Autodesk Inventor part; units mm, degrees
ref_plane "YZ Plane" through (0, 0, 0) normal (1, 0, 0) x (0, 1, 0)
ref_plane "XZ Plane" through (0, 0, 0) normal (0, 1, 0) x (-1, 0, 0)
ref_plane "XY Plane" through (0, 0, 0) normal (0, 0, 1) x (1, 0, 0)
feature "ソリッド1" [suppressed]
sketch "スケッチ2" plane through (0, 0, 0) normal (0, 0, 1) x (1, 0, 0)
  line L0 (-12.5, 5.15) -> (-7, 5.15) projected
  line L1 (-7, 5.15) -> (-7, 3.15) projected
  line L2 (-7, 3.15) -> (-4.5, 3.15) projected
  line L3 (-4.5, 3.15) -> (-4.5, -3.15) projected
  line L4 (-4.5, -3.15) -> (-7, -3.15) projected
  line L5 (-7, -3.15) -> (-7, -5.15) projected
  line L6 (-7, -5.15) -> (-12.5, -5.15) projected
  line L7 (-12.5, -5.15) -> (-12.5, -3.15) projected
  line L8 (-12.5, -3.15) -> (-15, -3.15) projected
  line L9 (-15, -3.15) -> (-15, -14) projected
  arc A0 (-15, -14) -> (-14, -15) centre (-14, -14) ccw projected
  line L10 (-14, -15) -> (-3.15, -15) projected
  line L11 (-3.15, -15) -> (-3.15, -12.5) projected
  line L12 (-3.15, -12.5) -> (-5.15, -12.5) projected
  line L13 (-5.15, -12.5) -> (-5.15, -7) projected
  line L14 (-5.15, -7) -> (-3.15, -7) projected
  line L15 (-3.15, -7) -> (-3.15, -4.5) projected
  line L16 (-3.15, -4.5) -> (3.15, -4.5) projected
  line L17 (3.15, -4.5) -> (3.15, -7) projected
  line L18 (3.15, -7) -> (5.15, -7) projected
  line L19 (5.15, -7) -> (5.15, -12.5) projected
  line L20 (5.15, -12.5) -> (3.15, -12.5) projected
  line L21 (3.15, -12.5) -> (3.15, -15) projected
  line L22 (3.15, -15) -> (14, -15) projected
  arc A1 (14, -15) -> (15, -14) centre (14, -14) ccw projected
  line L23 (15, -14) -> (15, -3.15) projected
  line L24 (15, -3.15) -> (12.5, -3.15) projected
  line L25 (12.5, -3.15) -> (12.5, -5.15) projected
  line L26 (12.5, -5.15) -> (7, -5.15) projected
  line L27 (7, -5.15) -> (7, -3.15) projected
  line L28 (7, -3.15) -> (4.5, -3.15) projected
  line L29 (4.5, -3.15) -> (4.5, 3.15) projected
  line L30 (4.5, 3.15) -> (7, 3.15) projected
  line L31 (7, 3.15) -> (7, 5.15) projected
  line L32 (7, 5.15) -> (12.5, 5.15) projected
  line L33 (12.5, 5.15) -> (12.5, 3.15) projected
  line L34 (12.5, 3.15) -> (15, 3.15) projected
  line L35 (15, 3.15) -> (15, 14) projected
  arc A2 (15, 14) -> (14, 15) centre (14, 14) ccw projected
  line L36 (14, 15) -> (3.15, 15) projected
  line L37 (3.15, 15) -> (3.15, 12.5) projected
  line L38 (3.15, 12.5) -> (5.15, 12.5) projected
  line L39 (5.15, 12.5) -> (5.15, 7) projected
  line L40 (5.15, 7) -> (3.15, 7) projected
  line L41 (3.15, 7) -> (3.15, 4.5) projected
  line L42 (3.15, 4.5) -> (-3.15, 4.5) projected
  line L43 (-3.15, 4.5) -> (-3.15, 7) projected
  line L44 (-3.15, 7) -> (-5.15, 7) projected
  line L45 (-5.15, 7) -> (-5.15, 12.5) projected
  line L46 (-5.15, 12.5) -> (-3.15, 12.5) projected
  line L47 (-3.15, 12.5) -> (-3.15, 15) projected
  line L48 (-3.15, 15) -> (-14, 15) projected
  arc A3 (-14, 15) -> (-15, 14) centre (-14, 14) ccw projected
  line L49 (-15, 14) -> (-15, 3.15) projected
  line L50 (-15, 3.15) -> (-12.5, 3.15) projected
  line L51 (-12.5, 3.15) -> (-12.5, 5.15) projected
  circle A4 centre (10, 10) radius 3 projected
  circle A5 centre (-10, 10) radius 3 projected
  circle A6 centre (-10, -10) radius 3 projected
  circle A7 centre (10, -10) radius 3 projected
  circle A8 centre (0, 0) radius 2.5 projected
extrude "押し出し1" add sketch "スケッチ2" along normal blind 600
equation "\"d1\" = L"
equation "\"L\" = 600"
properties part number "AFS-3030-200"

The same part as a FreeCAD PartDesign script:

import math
import FreeCAD as App
import Part
import Sketcher

V = App.Vector

doc = App.newDocument("Part")
body = doc.addObject("PartDesign::Body", "Body")

sketch1 = body.newObject("Sketcher::SketchObject", "Sketch")
sketch1.AttachmentSupport = (doc.getObject("XY_Plane"), [""])
sketch1.MapMode = "FlatFace"
sketch1.addGeometry([
    Part.LineSegment(V(-12.5, 3.1, 0), V(-12.5, 5.2, 0)),
    Part.LineSegment(V(-12.5, 5.2, 0), V(-7, 5.2, 0)),
    Part.LineSegment(V(-7, 5.2, 0), V(-7, 3.1, 0)),
    Part.LineSegment(V(-7, 3.1, 0), V(-4.5, 3.1, 0)),
    Part.LineSegment(V(-4.5, 3.1, 0), V(-4.5, -3.1, 0)),
    Part.LineSegment(V(-4.5, -3.1, 0), V(-7, -3.1, 0)),
    Part.LineSegment(V(-7, -3.1, 0), V(-7, -5.2, 0)),
    Part.LineSegment(V(-7, -5.2, 0), V(-12.5, -5.2, 0)),
    Part.LineSegment(V(-12.5, -5.2, 0), V(-12.5, -3.1, 0)),
    Part.LineSegment(V(-12.5, -3.1, 0), V(-15, -3.1, 0)),
    Part.LineSegment(V(-15, -3.1, 0), V(-15, -14, 0)),
    Part.ArcOfCircle(Part.Circle(V(-14, -14, 0), V(0, 0, 1), 1), math.radians(180), math.radians(270)),
    Part.LineSegment(V(-14, -15, 0), V(-3.1, -15, 0)),
    Part.LineSegment(V(-3.1, -15, 0), V(-3.1, -12.5, 0)),
    Part.LineSegment(V(-3.1, -12.5, 0), V(-5.2, -12.5, 0)),
    Part.LineSegment(V(-5.2, -12.5, 0), V(-5.2, -7, 0)),
    Part.LineSegment(V(-5.2, -7, 0), V(-3.1, -7, 0)),
    Part.LineSegment(V(-3.1, -7, 0), V(-3.1, -4.5, 0)),
    Part.LineSegment(V(-3.1, -4.5, 0), V(3.1, -4.5, 0)),
    Part.LineSegment(V(3.1, -4.5, 0), V(3.1, -7, 0)),
    Part.LineSegment(V(3.1, -7, 0), V(5.2, -7, 0)),
    Part.LineSegment(V(5.2, -7, 0), V(5.2, -12.5, 0)),
    Part.LineSegment(V(5.2, -12.5, 0), V(3.1, -12.5, 0)),
    Part.LineSegment(V(3.1, -12.5, 0), V(3.1, -15, 0)),
    Part.LineSegment(V(3.1, -15, 0), V(14, -15, 0)),
    Part.ArcOfCircle(Part.Circle(V(14, -14, 0), V(0, 0, 1), 1), math.radians(-90), math.radians(0)),
    Part.LineSegment(V(15, -14, 0), V(15, -3.1, 0)),
    Part.LineSegment(V(15, -3.1, 0), V(12.5, -3.1, 0)),
    Part.LineSegment(V(12.5, -3.1, 0), V(12.5, -5.2, 0)),
    Part.LineSegment(V(12.5, -5.2, 0), V(7, -5.2, 0)),
    Part.LineSegment(V(7, -5.2, 0), V(7, -3.1, 0)),
    Part.LineSegment(V(7, -3.1, 0), V(4.5, -3.1, 0)),
    Part.LineSegment(V(4.5, -3.1, 0), V(4.5, 3.1, 0)),
    Part.LineSegment(V(4.5, 3.1, 0), V(7, 3.1, 0)),
    Part.LineSegment(V(7, 3.1, 0), V(7, 5.2, 0)),
    Part.LineSegment(V(7, 5.2, 0), V(12.5, 5.2, 0)),
    Part.LineSegment(V(12.5, 5.2, 0), V(12.5, 3.1, 0)),
    Part.LineSegment(V(12.5, 3.1, 0), V(15, 3.1, 0)),
    Part.LineSegment(V(15, 3.1, 0), V(15, 14, 0)),
    Part.ArcOfCircle(Part.Circle(V(14, 14, 0), V(0, 0, 1), 1), math.radians(0), math.radians(90)),
    Part.LineSegment(V(14, 15, 0), V(3.1, 15, 0)),
    Part.LineSegment(V(3.1, 15, 0), V(3.1, 12.5, 0)),
    Part.LineSegment(V(3.1, 12.5, 0), V(5.2, 12.5, 0)),
    Part.LineSegment(V(5.2, 12.5, 0), V(5.2, 7, 0)),
    Part.LineSegment(V(5.2, 7, 0), V(3.1, 7, 0)),
    Part.LineSegment(V(3.1, 7, 0), V(3.1, 4.5, 0)),
    Part.LineSegment(V(3.1, 4.5, 0), V(-3.1, 4.5, 0)),
    Part.LineSegment(V(-3.1, 4.5, 0), V(-3.1, 7, 0)),
    Part.LineSegment(V(-3.1, 7, 0), V(-5.2, 7, 0)),
    Part.LineSegment(V(-5.2, 7, 0), V(-5.2, 12.5, 0)),
    Part.LineSegment(V(-5.2, 12.5, 0), V(-3.1, 12.5, 0)),
    Part.LineSegment(V(-3.1, 12.5, 0), V(-3.1, 15, 0)),
    Part.LineSegment(V(-3.1, 15, 0), V(-14, 15, 0)),
    Part.ArcOfCircle(Part.Circle(V(-14, 14, 0), V(0, 0, 1), 1), math.radians(90), math.radians(180)),
    Part.LineSegment(V(-15, 14, 0), V(-15, 3.1, 0)),
    Part.LineSegment(V(-15, 3.1, 0), V(-12.5, 3.1, 0)),
    Part.Circle(V(-10, -10, 0), V(0, 0, 1), 3),
    Part.Circle(V(10, -10, 0), V(0, 0, 1), 3),
    Part.Circle(V(-10, 10, 0), V(0, 0, 1), 3),
    Part.Circle(V(0, 0, 0), V(0, 0, 1), 2.5),
    Part.Circle(V(10, 10, 0), V(0, 0, 1), 3),
], False)
sketch1.addConstraint([
    Sketcher.Constraint("Coincident", 0, 2, 1, 1),
    Sketcher.Constraint("Coincident", 1, 2, 2, 1),
    Sketcher.Constraint("Coincident", 2, 2, 3, 1),
    Sketcher.Constraint("Coincident", 3, 2, 4, 1),
    Sketcher.Constraint("Coincident", 4, 2, 5, 1),
    Sketcher.Constraint("Coincident", 5, 2, 6, 1),
    Sketcher.Constraint("Coincident", 6, 2, 7, 1),
    Sketcher.Constraint("Coincident", 7, 2, 8, 1),
    Sketcher.Constraint("Coincident", 8, 2, 9, 1),
    Sketcher.Constraint("Coincident", 9, 2, 10, 1),
    Sketcher.Constraint("Tangent", 10, 2, 11, 1),
    Sketcher.Constraint("Tangent", 11, 2, 12, 1),
    Sketcher.Constraint("Coincident", 12, 2, 13, 1),
    Sketcher.Constraint("Coincident", 13, 2, 14, 1),
    Sketcher.Constraint("Coincident", 14, 2, 15, 1),
    Sketcher.Constraint("Coincident", 15, 2, 16, 1),
    Sketcher.Constraint("Coincident", 16, 2, 17, 1),
    Sketcher.Constraint("Coincident", 17, 2, 18, 1),
    Sketcher.Constraint("Coincident", 18, 2, 19, 1),
    Sketcher.Constraint("Coincident", 19, 2, 20, 1),
    Sketcher.Constraint("Coincident", 20, 2, 21, 1),
    Sketcher.Constraint("Coincident", 21, 2, 22, 1),
    Sketcher.Constraint("Coincident", 22, 2, 23, 1),
    Sketcher.Constraint("Coincident", 23, 2, 24, 1),
    Sketcher.Constraint("Tangent", 24, 2, 25, 1),
    Sketcher.Constraint("Tangent", 25, 2, 26, 1),
    Sketcher.Constraint("Coincident", 26, 2, 27, 1),
    Sketcher.Constraint("Coincident", 27, 2, 28, 1),
    Sketcher.Constraint("Coincident", 28, 2, 29, 1),
    Sketcher.Constraint("Coincident", 29, 2, 30, 1),
    Sketcher.Constraint("Coincident", 30, 2, 31, 1),
    Sketcher.Constraint("Coincident", 31, 2, 32, 1),
    Sketcher.Constraint("Coincident", 32, 2, 33, 1),
    Sketcher.Constraint("Coincident", 33, 2, 34, 1),
    Sketcher.Constraint("Coincident", 34, 2, 35, 1),
    Sketcher.Constraint("Coincident", 35, 2, 36, 1),
    Sketcher.Constraint("Coincident", 36, 2, 37, 1),
    Sketcher.Constraint("Coincident", 37, 2, 38, 1),
    Sketcher.Constraint("Tangent", 38, 2, 39, 1),
    Sketcher.Constraint("Tangent", 39, 2, 40, 1),
    Sketcher.Constraint("Coincident", 40, 2, 41, 1),
    Sketcher.Constraint("Coincident", 41, 2, 42, 1),
    Sketcher.Constraint("Coincident", 42, 2, 43, 1),
    Sketcher.Constraint("Coincident", 43, 2, 44, 1),
    Sketcher.Constraint("Coincident", 44, 2, 45, 1),
    Sketcher.Constraint("Coincident", 45, 2, 46, 1),
    Sketcher.Constraint("Coincident", 46, 2, 47, 1),
    Sketcher.Constraint("Coincident", 47, 2, 48, 1),
    Sketcher.Constraint("Coincident", 48, 2, 49, 1),
    Sketcher.Constraint("Coincident", 49, 2, 50, 1),
    Sketcher.Constraint("Coincident", 50, 2, 51, 1),
    Sketcher.Constraint("Coincident", 51, 2, 52, 1),
    Sketcher.Constraint("Tangent", 52, 2, 53, 1),
    Sketcher.Constraint("Tangent", 53, 2, 54, 1),
    Sketcher.Constraint("Coincident", 54, 2, 55, 1),
    Sketcher.Constraint("Coincident", 55, 2, 0, 1),
    Sketcher.Constraint("Vertical", 0),
    Sketcher.Constraint("Horizontal", 1),
    Sketcher.Constraint("Vertical", 2),
    Sketcher.Constraint("Horizontal", 3),
    Sketcher.Constraint("Vertical", 4),
    Sketcher.Constraint("Horizontal", 5),
    Sketcher.Constraint("Vertical", 6),
    Sketcher.Constraint("Horizontal", 7),
    Sketcher.Constraint("Vertical", 8),
    Sketcher.Constraint("Horizontal", 9),
    Sketcher.Constraint("Vertical", 10),
    Sketcher.Constraint("Horizontal", 12),
    Sketcher.Constraint("Vertical", 13),
    Sketcher.Constraint("Horizontal", 14),
    Sketcher.Constraint("Vertical", 15),
    Sketcher.Constraint("Horizontal", 16),
    Sketcher.Constraint("Vertical", 17),
    Sketcher.Constraint("Horizontal", 18),
    Sketcher.Constraint("Vertical", 19),
    Sketcher.Constraint("Horizontal", 20),
    Sketcher.Constraint("Vertical", 21),
    Sketcher.Constraint("Horizontal", 22),
    Sketcher.Constraint("Vertical", 23),
    Sketcher.Constraint("Horizontal", 24),
    Sketcher.Constraint("Vertical", 26),
    Sketcher.Constraint("Horizontal", 27),
    Sketcher.Constraint("Vertical", 28),
    Sketcher.Constraint("Horizontal", 29),
    Sketcher.Constraint("Vertical", 30),
    Sketcher.Constraint("Horizontal", 31),
    Sketcher.Constraint("Vertical", 32),
    Sketcher.Constraint("Horizontal", 33),
    Sketcher.Constraint("Vertical", 34),
    Sketcher.Constraint("Horizontal", 35),
    Sketcher.Constraint("Vertical", 36),
    Sketcher.Constraint("Horizontal", 37),
    Sketcher.Constraint("Vertical", 38),
    Sketcher.Constraint("Horizontal", 40),
    Sketcher.Constraint("Vertical", 41),
    Sketcher.Constraint("Horizontal", 42),
    Sketcher.Constraint("Vertical", 43),
    Sketcher.Constraint("Horizontal", 44),
    Sketcher.Constraint("Vertical", 45),
    Sketcher.Constraint("Horizontal", 46),
    Sketcher.Constraint("Vertical", 47),
    Sketcher.Constraint("Horizontal", 48),
    Sketcher.Constraint("Vertical", 49),
    Sketcher.Constraint("Horizontal", 50),
    Sketcher.Constraint("Vertical", 51),
    Sketcher.Constraint("Horizontal", 52),
    Sketcher.Constraint("Vertical", 54),
    Sketcher.Constraint("Horizontal", 55),
    Sketcher.Constraint("Coincident", 59, 3, -1, 1),
    Sketcher.Constraint("Equal", 11, 25),
    Sketcher.Constraint("Equal", 25, 39),
    Sketcher.Constraint("Equal", 39, 53),
    Sketcher.Constraint("Equal", 56, 57),
    Sketcher.Constraint("Equal", 57, 58),
    Sketcher.Constraint("Equal", 58, 60),
    Sketcher.Constraint("Symmetric", 11, 3, 39, 3, -1, 1),
    Sketcher.Constraint("Symmetric", 25, 3, 53, 3, -1, 1),
    Sketcher.Constraint("Symmetric", 57, 3, 58, 3, -1, 1),
    Sketcher.Constraint("Symmetric", 56, 3, 60, 3, -1, 1),
    Sketcher.Constraint("Symmetric", 0, 2, 28, 2, -1, 1),
    Sketcher.Constraint("Symmetric", 2, 2, 30, 2, -1, 1),
    Sketcher.Constraint("Symmetric", 4, 2, 32, 2, -1, 1),
    Sketcher.Constraint("Symmetric", 6, 2, 34, 2, -1, 1),
    Sketcher.Constraint("Symmetric", 8, 2, 36, 2, -1, 1),
    Sketcher.Constraint("Symmetric", 13, 2, 41, 2, -1, 1),
    Sketcher.Constraint("Symmetric", 15, 2, 43, 2, -1, 1),
    Sketcher.Constraint("Symmetric", 17, 2, 45, 2, -1, 1),
    Sketcher.Constraint("Symmetric", 19, 2, 47, 2, -1, 1),
    Sketcher.Constraint("Symmetric", 21, 2, 49, 2, -1, 1),
    Sketcher.Constraint("Symmetric", 11, 3, 25, 3, -2),
    Sketcher.Constraint("Symmetric", 56, 3, 57, 3, -2),
    Sketcher.Constraint("Symmetric", 16, 2, 19, 2, -2),
    Sketcher.Constraint("Symmetric", 14, 2, 21, 2, -2),
    Sketcher.Constraint("Symmetric", 8, 2, 27, 2, -2),
    Sketcher.Constraint("Symmetric", 6, 2, 29, 2, -2),
    Sketcher.Constraint("Horizontal", 5, 2, 8, 2),
    Sketcher.Constraint("Horizontal", 27, 2, 30, 2),
    Sketcher.Constraint("Horizontal", 37, 2, 54, 2),
    Sketcher.Constraint("Vertical", 13, 2, 16, 2),
    Sketcher.Constraint("Vertical", 19, 2, 22, 2),
    Sketcher.Constraint("Vertical", 47, 2, 50, 2),
    Sketcher.Constraint("Equal", 5, 9),
    Sketcher.Constraint("Equal", 50, 0),
    Sketcher.Constraint("Equal", 46, 4),
    Sketcher.Constraint("Equal", 52, 10),
    Sketcher.Constraint("Equal", 55, 13),
    Sketcher.Constraint("Equal", 35, 15),
    Sketcher.Constraint("Equal", 13, 17),
    Sketcher.Constraint("Diameter", 56, 6.0),
    Sketcher.Constraint("Diameter", 59, 5.0),
    Sketcher.Constraint("Radius", 11, 1.0),
    Sketcher.Constraint("DistanceX", 14, 2, 14, 1, 2.0),
    Sketcher.Constraint("DistanceX", 1, 1, 1, 2, 5.5),
    Sketcher.Constraint("DistanceX", 3, 1, 3, 2, 2.5),
    Sketcher.Constraint("DistanceX", 18, 1, 18, 2, 6.3),
    Sketcher.Constraint("DistanceX", 11, 3, -1, 1, 14.0),
    Sketcher.Constraint("DistanceX", 56, 3, -1, 1, 10.0),
    Sketcher.Constraint("DistanceY", 56, 3, -1, 1, 10.0),
])
pad1 = body.newObject("PartDesign::Pad", "Pad")
pad1.Profile = sketch1
pad1.Length = 600

doc.recompute()
